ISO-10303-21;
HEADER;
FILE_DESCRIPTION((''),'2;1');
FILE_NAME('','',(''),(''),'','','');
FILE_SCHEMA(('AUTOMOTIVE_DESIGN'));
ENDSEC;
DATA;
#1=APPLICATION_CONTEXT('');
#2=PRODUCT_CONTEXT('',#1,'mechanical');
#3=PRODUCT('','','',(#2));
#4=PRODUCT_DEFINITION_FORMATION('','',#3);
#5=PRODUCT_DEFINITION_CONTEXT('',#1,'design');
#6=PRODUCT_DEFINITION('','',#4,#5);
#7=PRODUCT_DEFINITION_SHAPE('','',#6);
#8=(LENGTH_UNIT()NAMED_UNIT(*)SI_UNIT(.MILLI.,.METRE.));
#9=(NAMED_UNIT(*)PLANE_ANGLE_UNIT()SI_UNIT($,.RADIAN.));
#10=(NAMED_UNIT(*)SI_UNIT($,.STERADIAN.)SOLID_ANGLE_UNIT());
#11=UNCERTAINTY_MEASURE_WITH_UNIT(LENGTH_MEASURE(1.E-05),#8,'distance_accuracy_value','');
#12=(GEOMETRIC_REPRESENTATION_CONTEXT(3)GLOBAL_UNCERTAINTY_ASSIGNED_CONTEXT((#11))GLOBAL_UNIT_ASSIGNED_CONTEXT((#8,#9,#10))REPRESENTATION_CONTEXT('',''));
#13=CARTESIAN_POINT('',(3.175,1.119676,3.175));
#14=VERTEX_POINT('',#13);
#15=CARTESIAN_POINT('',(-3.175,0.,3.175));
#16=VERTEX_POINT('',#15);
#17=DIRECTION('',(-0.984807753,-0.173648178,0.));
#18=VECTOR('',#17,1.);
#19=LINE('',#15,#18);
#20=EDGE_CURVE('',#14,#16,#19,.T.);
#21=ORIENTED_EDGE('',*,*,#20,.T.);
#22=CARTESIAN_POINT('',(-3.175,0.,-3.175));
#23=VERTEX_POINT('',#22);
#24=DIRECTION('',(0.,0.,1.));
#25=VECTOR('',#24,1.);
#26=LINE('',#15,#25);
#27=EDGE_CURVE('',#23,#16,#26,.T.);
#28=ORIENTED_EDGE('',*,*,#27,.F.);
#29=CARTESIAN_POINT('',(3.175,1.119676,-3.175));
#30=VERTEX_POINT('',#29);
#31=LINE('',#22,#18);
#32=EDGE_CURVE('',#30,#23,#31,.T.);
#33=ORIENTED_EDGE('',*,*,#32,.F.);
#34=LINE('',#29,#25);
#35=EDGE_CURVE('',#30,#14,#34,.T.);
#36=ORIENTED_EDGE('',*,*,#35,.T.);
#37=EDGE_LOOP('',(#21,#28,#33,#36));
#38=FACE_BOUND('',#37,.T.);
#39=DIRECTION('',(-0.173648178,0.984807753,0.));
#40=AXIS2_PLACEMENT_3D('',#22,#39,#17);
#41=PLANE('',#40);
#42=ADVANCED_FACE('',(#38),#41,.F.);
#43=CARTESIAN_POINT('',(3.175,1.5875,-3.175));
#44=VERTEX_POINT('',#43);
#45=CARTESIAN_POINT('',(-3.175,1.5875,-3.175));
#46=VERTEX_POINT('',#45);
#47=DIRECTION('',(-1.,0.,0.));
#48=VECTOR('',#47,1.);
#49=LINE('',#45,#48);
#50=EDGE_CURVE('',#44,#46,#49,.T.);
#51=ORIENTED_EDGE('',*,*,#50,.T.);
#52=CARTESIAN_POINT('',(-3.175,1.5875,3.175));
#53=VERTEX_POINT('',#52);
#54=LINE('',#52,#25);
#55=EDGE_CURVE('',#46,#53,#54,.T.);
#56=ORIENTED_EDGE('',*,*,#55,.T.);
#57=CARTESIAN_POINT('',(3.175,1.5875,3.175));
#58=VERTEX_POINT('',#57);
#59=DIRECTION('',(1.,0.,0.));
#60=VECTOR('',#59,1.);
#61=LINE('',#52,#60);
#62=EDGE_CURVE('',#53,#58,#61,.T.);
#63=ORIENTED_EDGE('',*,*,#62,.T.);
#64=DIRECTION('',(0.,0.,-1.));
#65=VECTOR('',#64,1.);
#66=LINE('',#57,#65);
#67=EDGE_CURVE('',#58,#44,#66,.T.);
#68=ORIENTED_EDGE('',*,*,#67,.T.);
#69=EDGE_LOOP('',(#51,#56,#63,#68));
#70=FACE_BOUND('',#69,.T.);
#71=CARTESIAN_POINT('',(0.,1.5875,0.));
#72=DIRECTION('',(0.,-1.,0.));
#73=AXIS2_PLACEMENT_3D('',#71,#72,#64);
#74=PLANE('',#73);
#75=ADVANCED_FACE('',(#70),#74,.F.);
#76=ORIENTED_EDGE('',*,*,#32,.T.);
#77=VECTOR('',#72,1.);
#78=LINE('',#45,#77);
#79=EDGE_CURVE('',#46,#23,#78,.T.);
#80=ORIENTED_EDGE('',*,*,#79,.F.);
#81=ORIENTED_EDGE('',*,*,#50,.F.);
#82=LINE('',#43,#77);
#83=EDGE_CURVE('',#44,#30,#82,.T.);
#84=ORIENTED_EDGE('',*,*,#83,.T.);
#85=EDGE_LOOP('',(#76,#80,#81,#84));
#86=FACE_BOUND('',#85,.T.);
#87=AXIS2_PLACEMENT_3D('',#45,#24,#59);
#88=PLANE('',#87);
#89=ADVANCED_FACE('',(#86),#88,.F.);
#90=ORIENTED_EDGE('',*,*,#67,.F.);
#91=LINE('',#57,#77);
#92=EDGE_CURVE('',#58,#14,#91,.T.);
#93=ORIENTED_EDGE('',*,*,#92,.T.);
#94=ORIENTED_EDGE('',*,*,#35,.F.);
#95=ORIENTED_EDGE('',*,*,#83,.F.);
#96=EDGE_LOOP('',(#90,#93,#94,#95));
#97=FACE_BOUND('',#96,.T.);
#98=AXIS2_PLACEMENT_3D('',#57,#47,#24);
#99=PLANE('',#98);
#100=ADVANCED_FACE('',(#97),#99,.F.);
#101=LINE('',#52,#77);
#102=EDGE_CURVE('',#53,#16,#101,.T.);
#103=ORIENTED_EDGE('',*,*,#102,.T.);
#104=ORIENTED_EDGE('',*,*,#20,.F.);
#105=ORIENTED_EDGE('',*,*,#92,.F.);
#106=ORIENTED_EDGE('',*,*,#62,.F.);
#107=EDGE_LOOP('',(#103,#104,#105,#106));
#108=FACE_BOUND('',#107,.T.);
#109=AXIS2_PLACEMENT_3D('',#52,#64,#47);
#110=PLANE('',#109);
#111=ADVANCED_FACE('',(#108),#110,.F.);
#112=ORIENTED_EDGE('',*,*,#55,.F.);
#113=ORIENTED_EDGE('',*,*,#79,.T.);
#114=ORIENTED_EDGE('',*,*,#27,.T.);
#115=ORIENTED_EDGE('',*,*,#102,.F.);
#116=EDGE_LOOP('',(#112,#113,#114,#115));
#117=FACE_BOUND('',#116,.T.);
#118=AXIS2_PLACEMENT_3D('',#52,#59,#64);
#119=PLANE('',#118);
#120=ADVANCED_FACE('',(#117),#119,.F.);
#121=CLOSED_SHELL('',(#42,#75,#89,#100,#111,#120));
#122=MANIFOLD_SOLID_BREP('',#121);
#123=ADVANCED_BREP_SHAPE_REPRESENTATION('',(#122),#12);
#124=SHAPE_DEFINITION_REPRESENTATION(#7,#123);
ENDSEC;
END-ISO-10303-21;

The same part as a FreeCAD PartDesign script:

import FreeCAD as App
import Part
import Sketcher
from FreeCAD import Vector
Q = App.Units.Quantity


def add_polygon(sketch, points):
    """Adds a closed chain of lines whose ends are joined by coincident constraints."""
    first, n = sketch.GeometryCount, len(points)
    for a, b in zip(points, points[1:] + points[:1]):
        sketch.addGeometry(Part.LineSegment(App.Vector(*a, 0), App.Vector(*b, 0)), False)
    for i in range(n):
        sketch.addConstraint(Sketcher.Constraint("Coincident", first + i, 2, first + (i + 1) % n, 1))

doc = App.newDocument("Part")
body = doc.addObject("PartDesign::Body", "Body")

# Sketch on XZ plane
sketch1 = body.newObject("Sketcher::SketchObject", "Sketch")
sketch1.AttachmentSupport = (doc.getObject("XZ_Plane"), [""])
sketch1.MapMode = "FlatFace"
add_polygon(sketch1, [(-3, -3), (-3, 3), (3, 3), (3, -3)])  # lines 0-3
sketch1.addConstraint(Sketcher.Constraint("Vertical", 0))
sketch1.addConstraint(Sketcher.Constraint("Horizontal", 1))
sketch1.addConstraint(Sketcher.Constraint("Vertical", 2))
sketch1.addConstraint(Sketcher.Constraint("Horizontal", 3))
sketch1.addConstraint(Sketcher.Constraint("Symmetric", 0, 2, 2, 2, -1, 1))
sketch1.addConstraint(Sketcher.Constraint("Equal", 3, 0))
sketch1.addConstraint(Sketcher.Constraint("DistanceX", 1, 1, 1, 2, Q("0.25 in")))
pad1 = body.newObject("PartDesign::Pad", "Pad")
pad1.Profile = sketch1
pad1.Length = Q("0.0625 in")
pad1.Reversed = True

# Sketch on XY plane
sketch2 = body.newObject("Sketcher::SketchObject", "Sketch001")
sketch2.AttachmentSupport = (doc.getObject("XY_Plane"), [""])
sketch2.MapMode = "FlatFace"
sketch2.AttachmentOffset = App.Placement(Vector(0, 0, 0.125 * 25.4), App.Rotation())
add_polygon(sketch2, [(3.2, 1.1), (-3.2, 0), (3.2, 0)])  # lines 0-2
sketch2.addConstraint(Sketcher.Constraint("Horizontal", 1))
sketch2.addConstraint(Sketcher.Constraint("Vertical", 2))
sketch2.addConstraint(Sketcher.Constraint("Symmetric", 0, 2, 1, 2, -1, 1))
sketch2.addConstraint(Sketcher.Constraint("Angle", 0, Q("-170 deg")))
sketch2.addConstraint(Sketcher.Constraint("DistanceX", 1, 1, 1, 2, Q("0.25 in")))
pocket1 = body.newObject("PartDesign::Pocket", "Pocket")
pocket1.Profile = sketch2
pocket1.Type = "ThroughAll"

doc.recompute()
